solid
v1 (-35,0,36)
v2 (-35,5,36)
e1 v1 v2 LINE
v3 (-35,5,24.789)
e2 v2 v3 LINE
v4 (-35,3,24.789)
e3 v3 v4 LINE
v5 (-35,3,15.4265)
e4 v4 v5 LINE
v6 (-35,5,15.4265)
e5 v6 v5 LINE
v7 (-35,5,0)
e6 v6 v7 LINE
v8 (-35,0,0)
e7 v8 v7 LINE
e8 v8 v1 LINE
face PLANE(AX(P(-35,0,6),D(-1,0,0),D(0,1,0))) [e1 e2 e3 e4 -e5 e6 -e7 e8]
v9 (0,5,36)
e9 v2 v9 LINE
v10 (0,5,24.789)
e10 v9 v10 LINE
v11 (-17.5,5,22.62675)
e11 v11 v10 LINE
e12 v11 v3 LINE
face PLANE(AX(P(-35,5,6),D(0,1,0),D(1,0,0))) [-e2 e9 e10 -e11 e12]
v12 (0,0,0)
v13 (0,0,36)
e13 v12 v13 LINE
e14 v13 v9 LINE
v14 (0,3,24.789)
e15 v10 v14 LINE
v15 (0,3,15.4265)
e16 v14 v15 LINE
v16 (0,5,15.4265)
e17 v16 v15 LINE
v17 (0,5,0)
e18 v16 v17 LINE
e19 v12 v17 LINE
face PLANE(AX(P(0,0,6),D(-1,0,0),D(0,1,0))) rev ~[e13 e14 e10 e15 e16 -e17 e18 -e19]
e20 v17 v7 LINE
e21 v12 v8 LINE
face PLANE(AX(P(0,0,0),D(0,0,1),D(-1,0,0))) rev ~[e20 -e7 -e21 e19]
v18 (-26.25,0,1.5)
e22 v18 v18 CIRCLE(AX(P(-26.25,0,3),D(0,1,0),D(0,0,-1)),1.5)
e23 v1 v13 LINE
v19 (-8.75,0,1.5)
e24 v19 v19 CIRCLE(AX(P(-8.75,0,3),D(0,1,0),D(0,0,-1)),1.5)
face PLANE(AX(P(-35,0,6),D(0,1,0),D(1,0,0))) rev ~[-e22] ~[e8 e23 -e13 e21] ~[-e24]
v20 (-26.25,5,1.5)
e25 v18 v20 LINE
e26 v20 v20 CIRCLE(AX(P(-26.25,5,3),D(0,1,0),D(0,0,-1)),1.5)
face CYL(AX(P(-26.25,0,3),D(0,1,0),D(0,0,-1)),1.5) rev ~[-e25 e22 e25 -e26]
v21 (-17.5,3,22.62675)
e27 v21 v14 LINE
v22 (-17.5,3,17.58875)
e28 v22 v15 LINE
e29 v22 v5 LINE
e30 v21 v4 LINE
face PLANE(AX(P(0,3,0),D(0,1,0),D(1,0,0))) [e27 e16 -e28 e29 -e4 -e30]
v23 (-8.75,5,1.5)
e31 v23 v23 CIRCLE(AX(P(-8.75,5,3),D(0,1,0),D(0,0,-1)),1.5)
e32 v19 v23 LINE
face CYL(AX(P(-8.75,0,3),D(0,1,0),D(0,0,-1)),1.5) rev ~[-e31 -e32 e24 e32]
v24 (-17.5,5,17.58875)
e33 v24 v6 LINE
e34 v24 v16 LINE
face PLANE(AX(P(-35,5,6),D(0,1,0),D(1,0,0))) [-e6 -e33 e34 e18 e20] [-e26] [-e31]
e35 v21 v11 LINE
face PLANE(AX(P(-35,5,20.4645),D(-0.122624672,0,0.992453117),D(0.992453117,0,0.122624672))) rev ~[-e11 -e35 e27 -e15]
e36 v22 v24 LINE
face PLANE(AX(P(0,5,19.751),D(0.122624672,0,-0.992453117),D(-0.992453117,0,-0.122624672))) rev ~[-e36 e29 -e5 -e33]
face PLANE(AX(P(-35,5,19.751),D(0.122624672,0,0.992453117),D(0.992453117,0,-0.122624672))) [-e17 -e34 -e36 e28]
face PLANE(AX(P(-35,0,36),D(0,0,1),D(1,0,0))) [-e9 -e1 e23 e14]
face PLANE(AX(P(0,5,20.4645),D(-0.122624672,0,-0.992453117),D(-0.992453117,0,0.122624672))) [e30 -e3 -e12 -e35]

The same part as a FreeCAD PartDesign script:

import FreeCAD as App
import Part
import Sketcher
Q = App.Units.Quantity

doc = App.newDocument("Part")
body = doc.addObject("PartDesign::Body", "Body")

# Sketch on XZ plane
sketch1 = doc.addObject("Sketcher::SketchObject", "Sketch")
body.addObject(sketch1)
sketch1.AttachmentSupport = (doc.XZ_Plane, [""])
sketch1.MapMode = "FlatFace"
sketch1.addGeometry(Part.LineSegment(App.Vector(0, 0, 0), App.Vector(-35, 0, 0)), False)
sketch1.addGeometry(Part.LineSegment(App.Vector(-35, 0, 0), App.Vector(-35, 6, 0)), False)
sketch1.addGeometry(Part.LineSegment(App.Vector(-35, 6, 0), App.Vector(0, 6, 0)), False)
sketch1.addGeometry(Part.LineSegment(App.Vector(0, 6, 0), App.Vector(0, 0, 0)), False)
sketch1.addConstraint(Sketcher.Constraint("Coincident", 0, 2, 1, 1))
sketch1.addConstraint(Sketcher.Constraint("Coincident", 1, 2, 2, 1))
sketch1.addConstraint(Sketcher.Constraint("Coincident", 2, 2, 3, 1))
sketch1.addConstraint(Sketcher.Constraint("Coincident", 3, 2, 0, 1))
sketch1.addConstraint(Sketcher.Constraint("Horizontal", 0))
sketch1.addConstraint(Sketcher.Constraint("Vertical", 1))
sketch1.addConstraint(Sketcher.Constraint("Horizontal", 2))
sketch1.addConstraint(Sketcher.Constraint("Vertical", 3))
sketch1.addConstraint(Sketcher.Constraint("Coincident", 3, 2, -1, 1))
sketch1.addConstraint(Sketcher.Constraint("DistanceX", 0, 2, 0, 1, Q("35 mm")))
sketch1.addConstraint(Sketcher.Constraint("DistanceY", 1, 1, 1, 2, Q("6 mm")))
pad1 = doc.addObject("PartDesign::Pad", "Pad")
body.addObject(pad1)
pad1.Profile = sketch1
pad1.Length = 5
pad1.Reversed = True

# Sketch on XY plane
sketch2 = doc.addObject("Sketcher::SketchObject", "Sketch001")
body.addObject(sketch2)
sketch2.AttachmentSupport = (doc.XY_Plane, [""])
sketch2.MapMode = "FlatFace"
sketch2.AttachmentOffset = App.Placement(App.Vector(0, 0, 6), App.Rotation())
sketch2.addGeometry(Part.LineSegment(App.Vector(-35, 5, 0), App.Vector(-35, 0, 0)), False)
sketch2.addGeometry(Part.LineSegment(App.Vector(-35, 0, 0), App.Vector(0, 0, 0)), False)
sketch2.addGeometry(Part.LineSegment(App.Vector(0, 0, 0), App.Vector(0, 5, 0)), False)
sketch2.addGeometry(Part.LineSegment(App.Vector(0, 5, 0), App.Vector(-35, 5, 0)), False)
sketch2.addConstraint(Sketcher.Constraint("Coincident", 0, 2, 1, 1))
sketch2.addConstraint(Sketcher.Constraint("Coincident", 1, 2, 2, 1))
sketch2.addConstraint(Sketcher.Constraint("Coincident", 2, 2, 3, 1))
sketch2.addConstraint(Sketcher.Constraint("Coincident", 3, 2, 0, 1))
sketch2.addConstraint(Sketcher.Constraint("Vertical", 0))
sketch2.addConstraint(Sketcher.Constraint("Horizontal", 1))
sketch2.addConstraint(Sketcher.Constraint("Vertical", 2))
sketch2.addConstraint(Sketcher.Constraint("Horizontal", 3))
sketch2.addConstraint(Sketcher.Constraint("Coincident", 1, 2, -1, 1))
sketch2.addConstraint(Sketcher.Constraint("DistanceX", 1, 1, 1, 2, Q("35 mm")))
sketch2.addConstraint(Sketcher.Constraint("DistanceY", 0, 2, 0, 1, Q("5 mm")))
pad2 = doc.addObject("PartDesign::Pad", "Pad001")
body.addObject(pad2)
pad2.Profile = sketch2
pad2.Length = 30

# Sketch on XZ plane
sketch3 = doc.addObject("Sketcher::SketchObject", "Sketch002")
body.addObject(sketch3)
sketch3.AttachmentSupport = (doc.XZ_Plane, [""])
sketch3.MapMode = "FlatFace"
sketch3.addGeometry(Part.Circle(App.Vector(-8.8, 3, 0), App.Vector(0, 0, 1), 1.5), False)
sketch3.addGeometry(Part.Circle(App.Vector(-26.2, 3, 0), App.Vector(0, 0, 1), 1.5), False)
sketch3.addConstraint(Sketcher.Constraint("Equal", 0, 1))
sketch3.addConstraint(Sketcher.Constraint("Horizontal", 0, 3, 1, 3))
sketch3.addConstraint(Sketcher.Constraint("Diameter", 0, Q("3 mm")))
sketch3.addConstraint(Sketcher.Constraint("DistanceY", -1, 1, 0, 3, Q("3 mm")))
sketch3.addConstraint(Sketcher.Constraint("DistanceX", 1, 3, 0, 3, Q("17.5 mm")))
sketch3.addConstraint(Sketcher.Constraint("DistanceX", 0, 3, -1, 1, Q("8.75 mm")))
doc.recompute()
hole = doc.addObject("PartDesign::Hole", "Hole")
body.addObject(hole)
hole.Profile = sketch3
hole.ThreadType = "None"
hole.Diameter = 3
hole.DepthType = "Dimension"
hole.Depth = 8
hole.DrillPoint = "Angled"
hole.DrillPointAngle = 118

# Sketch on XZ plane
sketch4 = doc.addObject("Sketcher::SketchObject", "Sketch003")
body.addObject(sketch4)
sketch4.AttachmentSupport = (doc.XZ_Plane, [""])
sketch4.MapMode = "FlatFace"
sketch4.AttachmentOffset = App.Placement(App.Vector(0, 0, -5), App.Rotation())
sketch4.addGeometry(Part.LineSegment(App.Vector(-35, 20, 0), App.Vector(-35, 25, 0)), False)
sketch4.addGeometry(Part.LineSegment(App.Vector(-35, 25, 0), App.Vector(0, 20, 0)), False)
sketch4.addGeometry(Part.LineSegment(App.Vector(0, 20, 0), App.Vector(0, 15, 0)), False)
sketch4.addGeometry(Part.LineSegment(App.Vector(0, 15, 0), App.Vector(-35, 20, 0)), False)
sketch4.addConstraint(Sketcher.Constraint("Coincident", 0, 2, 1, 1))
sketch4.addConstraint(Sketcher.Constraint("Coincident", 1, 2, 2, 1))
sketch4.addConstraint(Sketcher.Constraint("Coincident", 2, 2, 3, 1))
sketch4.addConstraint(Sketcher.Constraint("Coincident", 3, 2, 0, 1))
sketch4.addConstraint(Sketcher.Constraint("Vertical", 0))
sketch4.addConstraint(Sketcher.Constraint("Vertical", 2))
sketch4.addConstraint(Sketcher.Constraint("PointOnObject", 1, 2, -2))
sketch4.addConstraint(Sketcher.Constraint("Parallel", 1, 3))
sketch4.addConstraint(Sketcher.Constraint("DistanceX", 0, 2, -1, 1, Q("35 mm")))
sketch4.addConstraint(Sketcher.Constraint("DistanceY", 0, 1, 0, 2, Q("5.038 mm")))
sketch4.addConstraint(Sketcher.Constraint("DistanceY", -1, 1, 0, 2, Q("24.789 mm")))
sketch4.addConstraint(Sketcher.Constraint("Distance", 1, Q("35.2661 mm")))
pocket1 = doc.addObject("PartDesign::Pocket", "Pocket")
body.addObject(pocket1)
pocket1.Profile = sketch4
pocket1.Length = 2
pocket1.Reversed = True

# Sketch on XZ plane
sketch5 = doc.addObject("Sketcher::SketchObject", "Sketch004")
body.addObject(sketch5)
sketch5.AttachmentSupport = (doc.XZ_Plane, [""])
sketch5.MapMode = "FlatFace"
sketch5.AttachmentOffset = App.Placement(App.Vector(0, 0, -5), App.Rotation())
sketch5.addGeometry(Part.LineSegment(App.Vector(0, 25, 0), App.Vector(0, 20, 0)), False)
sketch5.addGeometry(Part.LineSegment(App.Vector(0, 20, 0), App.Vector(-35, 15, 0)), False)
sketch5.addGeometry(Part.LineSegment(App.Vector(-35, 15, 0), App.Vector(-35, 20, 0)), False)
sketch5.addGeometry(Part.LineSegment(App.Vector(-35, 20, 0), App.Vector(0, 25, 0)), False)
sketch5.addConstraint(Sketcher.Constraint("Coincident", 0, 2, 1, 1))
sketch5.addConstraint(Sketcher.Constraint("Coincident", 1, 2, 2, 1))
sketch5.addConstraint(Sketcher.Constraint("Coincident", 2, 2, 3, 1))
sketch5.addConstraint(Sketcher.Constraint("Coincident", 3, 2, 0, 1))
sketch5.addConstraint(Sketcher.Constraint("Vertical", 0))
sketch5.addConstraint(Sketcher.Constraint("Vertical", 2))
sketch5.addConstraint(Sketcher.Constraint("PointOnObject", 0, 2, -2))
sketch5.addConstraint(Sketcher.Constraint("Parallel", 1, 3))
sketch5.addConstraint(Sketcher.Constraint("DistanceX", 1, 2, -1, 1, Q("35 mm")))
sketch5.addConstraint(Sketcher.Constraint("DistanceY", 0, 2, 0, 1, Q("5.038 mm")))
sketch5.addConstraint(Sketcher.Constraint("DistanceY", -1, 1, 0, 2, Q("19.751 mm")))
sketch5.addConstraint(Sketcher.Constraint("Distance", 1, Q("35.2661 mm")))
pocket2 = doc.addObject("PartDesign::Pocket", "Pocket001")
body.addObject(pocket2)
pocket2.Profile = sketch5
pocket2.Length = 2
pocket2.Reversed = True

doc.recompute()
